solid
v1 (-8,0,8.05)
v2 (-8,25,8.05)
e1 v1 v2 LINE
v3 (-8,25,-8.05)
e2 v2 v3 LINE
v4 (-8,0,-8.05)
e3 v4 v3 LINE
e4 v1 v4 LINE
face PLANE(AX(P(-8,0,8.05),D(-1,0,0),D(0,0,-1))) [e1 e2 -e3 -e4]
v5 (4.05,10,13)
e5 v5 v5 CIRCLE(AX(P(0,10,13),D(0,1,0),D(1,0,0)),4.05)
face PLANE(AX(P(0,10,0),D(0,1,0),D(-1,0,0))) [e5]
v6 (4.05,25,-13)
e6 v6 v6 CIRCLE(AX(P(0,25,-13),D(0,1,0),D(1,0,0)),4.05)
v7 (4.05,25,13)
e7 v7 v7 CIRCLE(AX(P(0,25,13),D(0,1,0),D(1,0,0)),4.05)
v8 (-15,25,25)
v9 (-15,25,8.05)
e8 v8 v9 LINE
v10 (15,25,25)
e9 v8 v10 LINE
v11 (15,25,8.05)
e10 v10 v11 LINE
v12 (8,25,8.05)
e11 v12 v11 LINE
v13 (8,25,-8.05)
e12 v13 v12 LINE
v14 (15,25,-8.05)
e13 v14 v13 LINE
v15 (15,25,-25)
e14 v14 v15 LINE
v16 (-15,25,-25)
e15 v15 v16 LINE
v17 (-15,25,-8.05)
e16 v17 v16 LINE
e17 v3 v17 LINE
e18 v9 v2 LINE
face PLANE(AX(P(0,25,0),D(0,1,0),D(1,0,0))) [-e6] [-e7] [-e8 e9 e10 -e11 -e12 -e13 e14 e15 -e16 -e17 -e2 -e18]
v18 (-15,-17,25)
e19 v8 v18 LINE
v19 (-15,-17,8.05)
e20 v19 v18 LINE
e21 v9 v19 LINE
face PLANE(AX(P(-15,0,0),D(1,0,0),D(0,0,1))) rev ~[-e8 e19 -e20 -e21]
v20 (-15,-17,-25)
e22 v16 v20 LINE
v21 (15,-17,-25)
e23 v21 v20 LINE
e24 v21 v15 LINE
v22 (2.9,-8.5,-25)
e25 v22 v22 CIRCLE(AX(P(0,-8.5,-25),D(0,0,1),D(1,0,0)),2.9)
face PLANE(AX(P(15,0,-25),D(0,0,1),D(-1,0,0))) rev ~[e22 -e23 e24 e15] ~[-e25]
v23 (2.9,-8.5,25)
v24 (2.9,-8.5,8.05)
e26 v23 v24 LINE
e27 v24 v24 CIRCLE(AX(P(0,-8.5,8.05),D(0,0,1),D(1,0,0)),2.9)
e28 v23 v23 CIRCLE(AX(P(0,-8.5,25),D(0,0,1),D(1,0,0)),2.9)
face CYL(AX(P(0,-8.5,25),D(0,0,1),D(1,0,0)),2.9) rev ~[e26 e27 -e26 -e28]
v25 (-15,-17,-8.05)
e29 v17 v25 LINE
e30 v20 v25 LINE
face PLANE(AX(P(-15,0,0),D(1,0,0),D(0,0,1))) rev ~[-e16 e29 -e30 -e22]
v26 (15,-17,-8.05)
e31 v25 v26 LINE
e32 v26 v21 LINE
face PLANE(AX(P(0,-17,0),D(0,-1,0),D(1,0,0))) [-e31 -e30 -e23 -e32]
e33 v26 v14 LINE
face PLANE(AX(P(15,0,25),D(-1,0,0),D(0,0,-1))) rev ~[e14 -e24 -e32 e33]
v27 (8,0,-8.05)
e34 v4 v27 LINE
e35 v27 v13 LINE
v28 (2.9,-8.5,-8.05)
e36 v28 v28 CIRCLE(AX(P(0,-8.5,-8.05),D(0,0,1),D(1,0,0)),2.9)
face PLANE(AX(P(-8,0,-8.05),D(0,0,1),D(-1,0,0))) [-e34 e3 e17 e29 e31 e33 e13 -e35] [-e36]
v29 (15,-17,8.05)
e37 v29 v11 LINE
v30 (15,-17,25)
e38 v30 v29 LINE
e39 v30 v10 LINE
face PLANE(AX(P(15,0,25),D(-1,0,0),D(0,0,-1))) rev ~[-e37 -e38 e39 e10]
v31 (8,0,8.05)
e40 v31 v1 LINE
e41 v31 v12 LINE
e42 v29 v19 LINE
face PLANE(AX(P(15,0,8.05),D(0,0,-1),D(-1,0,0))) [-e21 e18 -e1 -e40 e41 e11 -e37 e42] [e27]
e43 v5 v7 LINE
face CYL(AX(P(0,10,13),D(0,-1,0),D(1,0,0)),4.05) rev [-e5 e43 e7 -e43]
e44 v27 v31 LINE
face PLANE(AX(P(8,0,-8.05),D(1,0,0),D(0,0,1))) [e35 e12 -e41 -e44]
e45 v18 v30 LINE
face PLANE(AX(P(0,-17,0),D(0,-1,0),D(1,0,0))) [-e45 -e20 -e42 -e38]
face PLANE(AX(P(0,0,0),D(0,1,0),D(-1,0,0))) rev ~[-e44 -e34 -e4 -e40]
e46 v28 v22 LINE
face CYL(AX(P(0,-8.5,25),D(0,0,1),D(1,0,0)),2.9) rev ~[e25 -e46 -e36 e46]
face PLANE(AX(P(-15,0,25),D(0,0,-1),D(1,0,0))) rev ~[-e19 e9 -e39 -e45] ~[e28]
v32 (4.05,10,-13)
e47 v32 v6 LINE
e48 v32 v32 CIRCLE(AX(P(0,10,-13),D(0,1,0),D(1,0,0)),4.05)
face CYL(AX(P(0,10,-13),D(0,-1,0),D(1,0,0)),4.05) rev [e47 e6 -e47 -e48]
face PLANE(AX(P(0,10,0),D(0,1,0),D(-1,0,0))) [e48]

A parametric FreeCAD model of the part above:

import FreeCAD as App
import Part
import Sketcher

V = App.Vector
Q = App.Units.Quantity


def add_polygon(sketch, points):
    """Adds a closed chain of lines whose ends are joined by coincident constraints."""
    first, n = sketch.GeometryCount, len(points)
    for a, b in zip(points, points[1:] + points[:1]):
        sketch.addGeometry(Part.LineSegment(App.Vector(*a, 0), App.Vector(*b, 0)), False)
    for i in range(n):
        sketch.addConstraint(Sketcher.Constraint("Coincident", first + i, 2, first + (i + 1) % n, 1))

doc = App.newDocument("Part")
body = doc.addObject("PartDesign::Body", "Body")

# Sketch on XZ plane
sketch1 = doc.addObject("Sketcher::SketchObject", "Sketch")
body.addObject(sketch1)
sketch1.AttachmentSupport = (doc.XZ_Plane, [""])
sketch1.MapMode = "FlatFace"
add_polygon(sketch1, [(-15, 25), (15, 25), (15, -25), (-15, -25)])  # lines 0-3
sketch1.addConstraint(Sketcher.Constraint("Horizontal", 0))
sketch1.addConstraint(Sketcher.Constraint("Vertical", 1))
sketch1.addConstraint(Sketcher.Constraint("Horizontal", 2))
sketch1.addConstraint(Sketcher.Constraint("Vertical", 3))
sketch1.addConstraint(Sketcher.Constraint("Symmetric", 0, 2, 2, 2, -1, 1))
sketch1.addConstraint(Sketcher.Constraint("DistanceX", 0, 1, 0, 2, Q("30 mm")))
sketch1.addConstraint(Sketcher.Constraint("DistanceY", 1, 2, 1, 1, Q("50 mm")))
pad1 = doc.addObject("PartDesign::Pad", "Pad")
body.addObject(pad1)
pad1.Profile = sketch1
pad1.Length = 10
pad1.Reversed = True

# Sketch on XZ plane
sketch2 = doc.addObject("Sketcher::SketchObject", "Sketch001")
body.addObject(sketch2)
sketch2.AttachmentSupport = (doc.XZ_Plane, [""])
sketch2.MapMode = "FlatFace"
sketch2.AttachmentOffset = App.Placement(V(0, 0, -10), App.Rotation())
add_polygon(sketch2, [(-15, -25), (-15, 25), (15, 25), (15, -25)])  # lines 0-3
sketch2.addGeometry(Part.Circle(V(0, -13, 0), V(0, 0, 1), 4), False)  # 4
sketch2.addGeometry(Part.Circle(V(0, 13, 0), V(0, 0, 1), 4), False)  # 5
sketch2.addConstraint(Sketcher.Constraint("Vertical", 0))
sketch2.addConstraint(Sketcher.Constraint("Horizontal", 1))
sketch2.addConstraint(Sketcher.Constraint("Vertical", 2))
sketch2.addConstraint(Sketcher.Constraint("Horizontal", 3))
sketch2.addConstraint(Sketcher.Constraint("Equal", 4, 5))
sketch2.addConstraint(Sketcher.Constraint("Symmetric", 4, 3, 5, 3, -1, 1))
sketch2.addConstraint(Sketcher.Constraint("Symmetric", 0, 2, 2, 2, -1, 1))
sketch2.addConstraint(Sketcher.Constraint("PointOnObject", 4, 3, -2))
sketch2.addConstraint(Sketcher.Constraint("Diameter", 4, Q("8.1 mm")))
sketch2.addConstraint(Sketcher.Constraint("DistanceY", 4, 3, -1, 1, Q("13 mm")))
sketch2.addConstraint(Sketcher.Constraint("DistanceX", 1, 1, 1, 2, Q("30 mm")))
sketch2.addConstraint(Sketcher.Constraint("DistanceY", 0, 1, 0, 2, Q("50 mm")))
pad2 = doc.addObject("PartDesign::Pad", "Pad001")
body.addObject(pad2)
pad2.Profile = sketch2
pad2.Length = 15
pad2.Reversed = True

# Sketch on XZ plane
sketch3 = doc.addObject("Sketcher::SketchObject", "Sketch002")
body.addObject(sketch3)
sketch3.AttachmentSupport = (doc.XZ_Plane, [""])
sketch3.MapMode = "FlatFace"
add_polygon(sketch3, [(-15, -8), (-15, -25), (15, -25), (15, -8)])  # lines 0-3
add_polygon(sketch3, [(-15, 25), (-15, 8), (15, 8), (15, 25)])  # lines 4-7
sketch3.addConstraint(Sketcher.Constraint("Vertical", 0))
sketch3.addConstraint(Sketcher.Constraint("Horizontal", 1))
sketch3.addConstraint(Sketcher.Constraint("Vertical", 2))
sketch3.addConstraint(Sketcher.Constraint("Horizontal", 3))
sketch3.addConstraint(Sketcher.Constraint("Vertical", 4))
sketch3.addConstraint(Sketcher.Constraint("Horizontal", 5))
sketch3.addConstraint(Sketcher.Constraint("Vertical", 6))
sketch3.addConstraint(Sketcher.Constraint("Horizontal", 7))
sketch3.addConstraint(Sketcher.Constraint("Symmetric", 2, 2, 4, 2, -1, 1))
sketch3.addConstraint(Sketcher.Constraint("Symmetric", 0, 2, 6, 2, -1, 1))
sketch3.addConstraint(Sketcher.Constraint("Vertical", 3, 2, 4, 2))
sketch3.addConstraint(Sketcher.Constraint("DistanceY", 3, 2, 4, 2, Q("16.1 mm")))
sketch3.addConstraint(Sketcher.Constraint("DistanceX", 1, 1, 1, 2, Q("30 mm")))
sketch3.addConstraint(Sketcher.Constraint("DistanceY", 0, 2, -1, 1, Q("25 mm")))
pad3 = doc.addObject("PartDesign::Pad", "Pad002")
body.addObject(pad3)
pad3.Profile = sketch3
pad3.Length = 17

# Sketch on XY plane
sketch4 = doc.addObject("Sketcher::SketchObject", "Sketch003")
body.addObject(sketch4)
sketch4.AttachmentSupport = (doc.XY_Plane, [""])
sketch4.MapMode = "FlatFace"
sketch4.AttachmentOffset = App.Placement(V(0, 0, 25), App.Rotation())
sketch4.addGeometry(Part.Circle(V(0, -8.5, 0), V(0, 0, 1), 2.9), False)
sketch4.addConstraint(Sketcher.Constraint("PointOnObject", 0, 3, -2))
sketch4.addConstraint(Sketcher.Constraint("Diameter", 0, Q("5.8 mm")))
sketch4.addConstraint(Sketcher.Constraint("DistanceY", 0, 3, -1, 1, Q("8.5 mm")))
pocket1 = doc.addObject("PartDesign::Pocket", "Pocket")
body.addObject(pocket1)
pocket1.Profile = sketch4
pocket1.Length = 50

# Sketch on XZ plane
sketch5 = doc.addObject("Sketcher::SketchObject", "Sketch004")
body.addObject(sketch5)
sketch5.AttachmentSupport = (doc.XZ_Plane, [""])
sketch5.MapMode = "FlatFace"
add_polygon(sketch5, [(8, -8), (15, -8), (15, 8), (8, 8)])  # lines 0-3
add_polygon(sketch5, [(-15, -8), (-8, -8), (-8, 8), (-15, 8)])  # lines 4-7
sketch5.addConstraint(Sketcher.Constraint("Horizontal", 0))
sketch5.addConstraint(Sketcher.Constraint("Vertical", 1))
sketch5.addConstraint(Sketcher.Constraint("Horizontal", 2))
sketch5.addConstraint(Sketcher.Constraint("Vertical", 3))
sketch5.addConstraint(Sketcher.Constraint("Horizontal", 4))
sketch5.addConstraint(Sketcher.Constraint("Vertical", 5))
sketch5.addConstraint(Sketcher.Constraint("Horizontal", 6))
sketch5.addConstraint(Sketcher.Constraint("Vertical", 7))
sketch5.addConstraint(Sketcher.Constraint("Symmetric", 2, 2, 4, 2, -1, 1))
sketch5.addConstraint(Sketcher.Constraint("Symmetric", 0, 2, 6, 2, -1, 1))
sketch5.addConstraint(Sketcher.Constraint("Horizontal", 3, 2, 4, 2))
sketch5.addConstraint(Sketcher.Constraint("DistanceX", 4, 2, 3, 2, Q("16 mm")))
sketch5.addConstraint(Sketcher.Constraint("DistanceX", 0, 1, 0, 2, Q("7 mm")))
sketch5.addConstraint(Sketcher.Constraint("DistanceY", 1, 1, 1, 2, Q("16.1 mm")))
pocket2 = doc.addObject("PartDesign::Pocket", "Pocket001")
body.addObject(pocket2)
pocket2.Profile = sketch5
pocket2.Length = 25

doc.recompute()
